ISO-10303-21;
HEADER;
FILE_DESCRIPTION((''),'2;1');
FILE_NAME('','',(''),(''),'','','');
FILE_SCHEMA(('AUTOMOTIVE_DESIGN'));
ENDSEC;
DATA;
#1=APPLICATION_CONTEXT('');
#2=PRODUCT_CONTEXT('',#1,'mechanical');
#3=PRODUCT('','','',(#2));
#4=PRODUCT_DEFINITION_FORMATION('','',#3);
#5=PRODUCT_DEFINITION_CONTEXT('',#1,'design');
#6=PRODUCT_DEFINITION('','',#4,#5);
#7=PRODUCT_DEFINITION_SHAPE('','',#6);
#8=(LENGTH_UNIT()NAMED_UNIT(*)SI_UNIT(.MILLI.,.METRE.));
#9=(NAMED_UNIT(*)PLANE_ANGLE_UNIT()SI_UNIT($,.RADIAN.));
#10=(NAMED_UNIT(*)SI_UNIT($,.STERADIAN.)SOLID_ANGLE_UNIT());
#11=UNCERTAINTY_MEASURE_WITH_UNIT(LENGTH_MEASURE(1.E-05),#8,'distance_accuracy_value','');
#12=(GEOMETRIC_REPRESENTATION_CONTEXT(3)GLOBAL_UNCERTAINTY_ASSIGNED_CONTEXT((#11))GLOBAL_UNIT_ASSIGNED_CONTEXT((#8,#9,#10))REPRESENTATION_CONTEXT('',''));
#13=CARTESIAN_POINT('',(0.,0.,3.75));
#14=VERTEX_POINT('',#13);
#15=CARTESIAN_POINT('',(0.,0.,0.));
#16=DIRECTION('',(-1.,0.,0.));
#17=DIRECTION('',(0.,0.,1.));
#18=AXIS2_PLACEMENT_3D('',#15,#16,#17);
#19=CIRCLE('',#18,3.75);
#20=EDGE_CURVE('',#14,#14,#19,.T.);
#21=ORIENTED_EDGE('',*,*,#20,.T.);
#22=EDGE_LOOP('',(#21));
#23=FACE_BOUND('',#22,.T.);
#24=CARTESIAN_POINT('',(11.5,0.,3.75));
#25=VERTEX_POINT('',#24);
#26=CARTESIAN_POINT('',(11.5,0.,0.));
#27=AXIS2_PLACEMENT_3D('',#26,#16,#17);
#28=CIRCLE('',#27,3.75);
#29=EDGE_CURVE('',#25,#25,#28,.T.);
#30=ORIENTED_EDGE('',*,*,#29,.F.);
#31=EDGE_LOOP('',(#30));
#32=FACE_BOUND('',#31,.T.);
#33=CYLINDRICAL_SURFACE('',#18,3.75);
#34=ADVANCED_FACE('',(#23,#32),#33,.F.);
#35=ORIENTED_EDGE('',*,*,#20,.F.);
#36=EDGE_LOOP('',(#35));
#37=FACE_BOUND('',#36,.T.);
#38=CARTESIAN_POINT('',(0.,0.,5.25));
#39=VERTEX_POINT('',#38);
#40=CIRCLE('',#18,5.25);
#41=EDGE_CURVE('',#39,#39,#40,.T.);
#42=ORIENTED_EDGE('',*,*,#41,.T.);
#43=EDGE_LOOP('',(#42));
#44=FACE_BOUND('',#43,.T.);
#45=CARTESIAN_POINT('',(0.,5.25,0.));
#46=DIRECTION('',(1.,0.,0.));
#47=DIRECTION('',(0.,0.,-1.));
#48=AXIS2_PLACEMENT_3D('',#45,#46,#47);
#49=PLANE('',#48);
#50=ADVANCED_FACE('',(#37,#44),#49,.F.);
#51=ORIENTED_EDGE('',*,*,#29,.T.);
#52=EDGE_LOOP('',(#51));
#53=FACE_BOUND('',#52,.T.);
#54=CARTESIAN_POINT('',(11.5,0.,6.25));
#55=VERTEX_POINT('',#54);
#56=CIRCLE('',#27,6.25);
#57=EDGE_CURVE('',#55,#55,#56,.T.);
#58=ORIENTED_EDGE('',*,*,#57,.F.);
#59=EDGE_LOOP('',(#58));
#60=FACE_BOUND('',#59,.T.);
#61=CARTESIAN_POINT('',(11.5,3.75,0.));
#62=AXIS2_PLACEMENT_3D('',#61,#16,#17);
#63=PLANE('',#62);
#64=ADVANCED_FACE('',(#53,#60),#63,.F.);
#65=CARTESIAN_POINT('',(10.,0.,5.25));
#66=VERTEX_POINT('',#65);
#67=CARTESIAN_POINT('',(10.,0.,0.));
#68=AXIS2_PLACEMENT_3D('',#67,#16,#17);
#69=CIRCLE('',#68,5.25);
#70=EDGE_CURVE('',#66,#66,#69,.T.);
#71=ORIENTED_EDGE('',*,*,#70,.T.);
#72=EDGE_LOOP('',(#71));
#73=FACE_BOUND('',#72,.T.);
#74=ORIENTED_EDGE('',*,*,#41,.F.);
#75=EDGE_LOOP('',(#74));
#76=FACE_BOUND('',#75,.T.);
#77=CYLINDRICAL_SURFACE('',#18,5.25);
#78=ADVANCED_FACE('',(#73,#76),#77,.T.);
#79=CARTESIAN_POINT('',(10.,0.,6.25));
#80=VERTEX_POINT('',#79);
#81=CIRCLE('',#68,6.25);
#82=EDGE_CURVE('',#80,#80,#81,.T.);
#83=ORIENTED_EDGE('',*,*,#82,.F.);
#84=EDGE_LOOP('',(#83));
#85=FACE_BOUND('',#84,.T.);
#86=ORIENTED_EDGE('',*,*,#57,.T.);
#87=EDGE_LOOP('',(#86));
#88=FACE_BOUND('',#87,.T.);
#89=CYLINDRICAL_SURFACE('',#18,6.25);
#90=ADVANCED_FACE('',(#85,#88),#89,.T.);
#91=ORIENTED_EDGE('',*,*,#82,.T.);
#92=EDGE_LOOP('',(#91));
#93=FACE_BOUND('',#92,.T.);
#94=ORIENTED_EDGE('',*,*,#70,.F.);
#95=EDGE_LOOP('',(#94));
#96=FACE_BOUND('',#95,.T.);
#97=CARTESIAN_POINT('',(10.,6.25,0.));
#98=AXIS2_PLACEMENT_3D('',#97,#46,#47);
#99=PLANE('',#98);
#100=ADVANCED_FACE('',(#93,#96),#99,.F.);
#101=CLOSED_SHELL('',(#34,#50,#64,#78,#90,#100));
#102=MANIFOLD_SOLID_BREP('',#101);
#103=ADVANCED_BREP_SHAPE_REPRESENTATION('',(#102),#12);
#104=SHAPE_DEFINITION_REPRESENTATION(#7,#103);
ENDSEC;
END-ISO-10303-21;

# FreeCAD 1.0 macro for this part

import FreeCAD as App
import Part
import Sketcher
from FreeCAD import Vector
Q = App.Units.Quantity

doc = App.newDocument("Part")
body = doc.addObject("PartDesign::Body", "Body")

sketch1 = doc.addObject("Sketcher::SketchObject", "Sketch")
body.addObject(sketch1)
sketch1.AttachmentSupport = (doc.XY_Plane, [""])
sketch1.MapMode = "FlatFace"
sketch1.addGeometry(Part.LineSegment(Vector(0, 5.25, 0), Vector(0, 3.75, 0)), False)
sketch1.addGeometry(Part.LineSegment(Vector(0, 3.75, 0), Vector(11.5, 3.75, 0)), False)
sketch1.addGeometry(Part.LineSegment(Vector(11.5, 3.75, 0), Vector(11.5, 6.25, 0)), False)
sketch1.addGeometry(Part.LineSegment(Vector(11.5, 6.25, 0), Vector(10, 6.25, 0)), False)
sketch1.addGeometry(Part.LineSegment(Vector(10, 6.25, 0), Vector(10, 5.25, 0)), False)
sketch1.addGeometry(Part.LineSegment(Vector(10, 5.25, 0), Vector(0, 5.25, 0)), False)
sketch1.addConstraint(Sketcher.Constraint("Coincident", 0, 2, 1, 1))
sketch1.addConstraint(Sketcher.Constraint("Coincident", 1, 2, 2, 1))
sketch1.addConstraint(Sketcher.Constraint("Coincident", 2, 2, 3, 1))
sketch1.addConstraint(Sketcher.Constraint("Coincident", 3, 2, 4, 1))
sketch1.addConstraint(Sketcher.Constraint("Coincident", 4, 2, 5, 1))
sketch1.addConstraint(Sketcher.Constraint("Coincident", 5, 2, 0, 1))
sketch1.addConstraint(Sketcher.Constraint("Vertical", 0))
sketch1.addConstraint(Sketcher.Constraint("Horizontal", 1))
sketch1.addConstraint(Sketcher.Constraint("Vertical", 2))
sketch1.addConstraint(Sketcher.Constraint("Horizontal", 3))
sketch1.addConstraint(Sketcher.Constraint("Vertical", 4))
sketch1.addConstraint(Sketcher.Constraint("Horizontal", 5))
sketch1.addConstraint(Sketcher.Constraint("PointOnObject", 0, 2, -2))
sketch1.addConstraint(Sketcher.Constraint("Equal", 3, 0))
sketch1.addConstraint(Sketcher.Constraint("DistanceX", 5, 2, 5, 1, Q("10 mm")))
sketch1.addConstraint(Sketcher.Constraint("DistanceY", 4, 2, 4, 1, Q("1 mm")))
sketch1.addConstraint(Sketcher.Constraint("DistanceX", 1, 1, 1, 2, Q("11.5 mm")))
sketch1.addConstraint(Sketcher.Constraint("DistanceY", -1, 1, 0, 2, Q("3.75 mm")))
revolution = doc.addObject("PartDesign::Revolution", "Revolution")
body.addObject(revolution)
revolution.Profile = sketch1
revolution.ReferenceAxis = (sketch1, ["H_Axis"])
revolution.Angle = 360

doc.recompute()
